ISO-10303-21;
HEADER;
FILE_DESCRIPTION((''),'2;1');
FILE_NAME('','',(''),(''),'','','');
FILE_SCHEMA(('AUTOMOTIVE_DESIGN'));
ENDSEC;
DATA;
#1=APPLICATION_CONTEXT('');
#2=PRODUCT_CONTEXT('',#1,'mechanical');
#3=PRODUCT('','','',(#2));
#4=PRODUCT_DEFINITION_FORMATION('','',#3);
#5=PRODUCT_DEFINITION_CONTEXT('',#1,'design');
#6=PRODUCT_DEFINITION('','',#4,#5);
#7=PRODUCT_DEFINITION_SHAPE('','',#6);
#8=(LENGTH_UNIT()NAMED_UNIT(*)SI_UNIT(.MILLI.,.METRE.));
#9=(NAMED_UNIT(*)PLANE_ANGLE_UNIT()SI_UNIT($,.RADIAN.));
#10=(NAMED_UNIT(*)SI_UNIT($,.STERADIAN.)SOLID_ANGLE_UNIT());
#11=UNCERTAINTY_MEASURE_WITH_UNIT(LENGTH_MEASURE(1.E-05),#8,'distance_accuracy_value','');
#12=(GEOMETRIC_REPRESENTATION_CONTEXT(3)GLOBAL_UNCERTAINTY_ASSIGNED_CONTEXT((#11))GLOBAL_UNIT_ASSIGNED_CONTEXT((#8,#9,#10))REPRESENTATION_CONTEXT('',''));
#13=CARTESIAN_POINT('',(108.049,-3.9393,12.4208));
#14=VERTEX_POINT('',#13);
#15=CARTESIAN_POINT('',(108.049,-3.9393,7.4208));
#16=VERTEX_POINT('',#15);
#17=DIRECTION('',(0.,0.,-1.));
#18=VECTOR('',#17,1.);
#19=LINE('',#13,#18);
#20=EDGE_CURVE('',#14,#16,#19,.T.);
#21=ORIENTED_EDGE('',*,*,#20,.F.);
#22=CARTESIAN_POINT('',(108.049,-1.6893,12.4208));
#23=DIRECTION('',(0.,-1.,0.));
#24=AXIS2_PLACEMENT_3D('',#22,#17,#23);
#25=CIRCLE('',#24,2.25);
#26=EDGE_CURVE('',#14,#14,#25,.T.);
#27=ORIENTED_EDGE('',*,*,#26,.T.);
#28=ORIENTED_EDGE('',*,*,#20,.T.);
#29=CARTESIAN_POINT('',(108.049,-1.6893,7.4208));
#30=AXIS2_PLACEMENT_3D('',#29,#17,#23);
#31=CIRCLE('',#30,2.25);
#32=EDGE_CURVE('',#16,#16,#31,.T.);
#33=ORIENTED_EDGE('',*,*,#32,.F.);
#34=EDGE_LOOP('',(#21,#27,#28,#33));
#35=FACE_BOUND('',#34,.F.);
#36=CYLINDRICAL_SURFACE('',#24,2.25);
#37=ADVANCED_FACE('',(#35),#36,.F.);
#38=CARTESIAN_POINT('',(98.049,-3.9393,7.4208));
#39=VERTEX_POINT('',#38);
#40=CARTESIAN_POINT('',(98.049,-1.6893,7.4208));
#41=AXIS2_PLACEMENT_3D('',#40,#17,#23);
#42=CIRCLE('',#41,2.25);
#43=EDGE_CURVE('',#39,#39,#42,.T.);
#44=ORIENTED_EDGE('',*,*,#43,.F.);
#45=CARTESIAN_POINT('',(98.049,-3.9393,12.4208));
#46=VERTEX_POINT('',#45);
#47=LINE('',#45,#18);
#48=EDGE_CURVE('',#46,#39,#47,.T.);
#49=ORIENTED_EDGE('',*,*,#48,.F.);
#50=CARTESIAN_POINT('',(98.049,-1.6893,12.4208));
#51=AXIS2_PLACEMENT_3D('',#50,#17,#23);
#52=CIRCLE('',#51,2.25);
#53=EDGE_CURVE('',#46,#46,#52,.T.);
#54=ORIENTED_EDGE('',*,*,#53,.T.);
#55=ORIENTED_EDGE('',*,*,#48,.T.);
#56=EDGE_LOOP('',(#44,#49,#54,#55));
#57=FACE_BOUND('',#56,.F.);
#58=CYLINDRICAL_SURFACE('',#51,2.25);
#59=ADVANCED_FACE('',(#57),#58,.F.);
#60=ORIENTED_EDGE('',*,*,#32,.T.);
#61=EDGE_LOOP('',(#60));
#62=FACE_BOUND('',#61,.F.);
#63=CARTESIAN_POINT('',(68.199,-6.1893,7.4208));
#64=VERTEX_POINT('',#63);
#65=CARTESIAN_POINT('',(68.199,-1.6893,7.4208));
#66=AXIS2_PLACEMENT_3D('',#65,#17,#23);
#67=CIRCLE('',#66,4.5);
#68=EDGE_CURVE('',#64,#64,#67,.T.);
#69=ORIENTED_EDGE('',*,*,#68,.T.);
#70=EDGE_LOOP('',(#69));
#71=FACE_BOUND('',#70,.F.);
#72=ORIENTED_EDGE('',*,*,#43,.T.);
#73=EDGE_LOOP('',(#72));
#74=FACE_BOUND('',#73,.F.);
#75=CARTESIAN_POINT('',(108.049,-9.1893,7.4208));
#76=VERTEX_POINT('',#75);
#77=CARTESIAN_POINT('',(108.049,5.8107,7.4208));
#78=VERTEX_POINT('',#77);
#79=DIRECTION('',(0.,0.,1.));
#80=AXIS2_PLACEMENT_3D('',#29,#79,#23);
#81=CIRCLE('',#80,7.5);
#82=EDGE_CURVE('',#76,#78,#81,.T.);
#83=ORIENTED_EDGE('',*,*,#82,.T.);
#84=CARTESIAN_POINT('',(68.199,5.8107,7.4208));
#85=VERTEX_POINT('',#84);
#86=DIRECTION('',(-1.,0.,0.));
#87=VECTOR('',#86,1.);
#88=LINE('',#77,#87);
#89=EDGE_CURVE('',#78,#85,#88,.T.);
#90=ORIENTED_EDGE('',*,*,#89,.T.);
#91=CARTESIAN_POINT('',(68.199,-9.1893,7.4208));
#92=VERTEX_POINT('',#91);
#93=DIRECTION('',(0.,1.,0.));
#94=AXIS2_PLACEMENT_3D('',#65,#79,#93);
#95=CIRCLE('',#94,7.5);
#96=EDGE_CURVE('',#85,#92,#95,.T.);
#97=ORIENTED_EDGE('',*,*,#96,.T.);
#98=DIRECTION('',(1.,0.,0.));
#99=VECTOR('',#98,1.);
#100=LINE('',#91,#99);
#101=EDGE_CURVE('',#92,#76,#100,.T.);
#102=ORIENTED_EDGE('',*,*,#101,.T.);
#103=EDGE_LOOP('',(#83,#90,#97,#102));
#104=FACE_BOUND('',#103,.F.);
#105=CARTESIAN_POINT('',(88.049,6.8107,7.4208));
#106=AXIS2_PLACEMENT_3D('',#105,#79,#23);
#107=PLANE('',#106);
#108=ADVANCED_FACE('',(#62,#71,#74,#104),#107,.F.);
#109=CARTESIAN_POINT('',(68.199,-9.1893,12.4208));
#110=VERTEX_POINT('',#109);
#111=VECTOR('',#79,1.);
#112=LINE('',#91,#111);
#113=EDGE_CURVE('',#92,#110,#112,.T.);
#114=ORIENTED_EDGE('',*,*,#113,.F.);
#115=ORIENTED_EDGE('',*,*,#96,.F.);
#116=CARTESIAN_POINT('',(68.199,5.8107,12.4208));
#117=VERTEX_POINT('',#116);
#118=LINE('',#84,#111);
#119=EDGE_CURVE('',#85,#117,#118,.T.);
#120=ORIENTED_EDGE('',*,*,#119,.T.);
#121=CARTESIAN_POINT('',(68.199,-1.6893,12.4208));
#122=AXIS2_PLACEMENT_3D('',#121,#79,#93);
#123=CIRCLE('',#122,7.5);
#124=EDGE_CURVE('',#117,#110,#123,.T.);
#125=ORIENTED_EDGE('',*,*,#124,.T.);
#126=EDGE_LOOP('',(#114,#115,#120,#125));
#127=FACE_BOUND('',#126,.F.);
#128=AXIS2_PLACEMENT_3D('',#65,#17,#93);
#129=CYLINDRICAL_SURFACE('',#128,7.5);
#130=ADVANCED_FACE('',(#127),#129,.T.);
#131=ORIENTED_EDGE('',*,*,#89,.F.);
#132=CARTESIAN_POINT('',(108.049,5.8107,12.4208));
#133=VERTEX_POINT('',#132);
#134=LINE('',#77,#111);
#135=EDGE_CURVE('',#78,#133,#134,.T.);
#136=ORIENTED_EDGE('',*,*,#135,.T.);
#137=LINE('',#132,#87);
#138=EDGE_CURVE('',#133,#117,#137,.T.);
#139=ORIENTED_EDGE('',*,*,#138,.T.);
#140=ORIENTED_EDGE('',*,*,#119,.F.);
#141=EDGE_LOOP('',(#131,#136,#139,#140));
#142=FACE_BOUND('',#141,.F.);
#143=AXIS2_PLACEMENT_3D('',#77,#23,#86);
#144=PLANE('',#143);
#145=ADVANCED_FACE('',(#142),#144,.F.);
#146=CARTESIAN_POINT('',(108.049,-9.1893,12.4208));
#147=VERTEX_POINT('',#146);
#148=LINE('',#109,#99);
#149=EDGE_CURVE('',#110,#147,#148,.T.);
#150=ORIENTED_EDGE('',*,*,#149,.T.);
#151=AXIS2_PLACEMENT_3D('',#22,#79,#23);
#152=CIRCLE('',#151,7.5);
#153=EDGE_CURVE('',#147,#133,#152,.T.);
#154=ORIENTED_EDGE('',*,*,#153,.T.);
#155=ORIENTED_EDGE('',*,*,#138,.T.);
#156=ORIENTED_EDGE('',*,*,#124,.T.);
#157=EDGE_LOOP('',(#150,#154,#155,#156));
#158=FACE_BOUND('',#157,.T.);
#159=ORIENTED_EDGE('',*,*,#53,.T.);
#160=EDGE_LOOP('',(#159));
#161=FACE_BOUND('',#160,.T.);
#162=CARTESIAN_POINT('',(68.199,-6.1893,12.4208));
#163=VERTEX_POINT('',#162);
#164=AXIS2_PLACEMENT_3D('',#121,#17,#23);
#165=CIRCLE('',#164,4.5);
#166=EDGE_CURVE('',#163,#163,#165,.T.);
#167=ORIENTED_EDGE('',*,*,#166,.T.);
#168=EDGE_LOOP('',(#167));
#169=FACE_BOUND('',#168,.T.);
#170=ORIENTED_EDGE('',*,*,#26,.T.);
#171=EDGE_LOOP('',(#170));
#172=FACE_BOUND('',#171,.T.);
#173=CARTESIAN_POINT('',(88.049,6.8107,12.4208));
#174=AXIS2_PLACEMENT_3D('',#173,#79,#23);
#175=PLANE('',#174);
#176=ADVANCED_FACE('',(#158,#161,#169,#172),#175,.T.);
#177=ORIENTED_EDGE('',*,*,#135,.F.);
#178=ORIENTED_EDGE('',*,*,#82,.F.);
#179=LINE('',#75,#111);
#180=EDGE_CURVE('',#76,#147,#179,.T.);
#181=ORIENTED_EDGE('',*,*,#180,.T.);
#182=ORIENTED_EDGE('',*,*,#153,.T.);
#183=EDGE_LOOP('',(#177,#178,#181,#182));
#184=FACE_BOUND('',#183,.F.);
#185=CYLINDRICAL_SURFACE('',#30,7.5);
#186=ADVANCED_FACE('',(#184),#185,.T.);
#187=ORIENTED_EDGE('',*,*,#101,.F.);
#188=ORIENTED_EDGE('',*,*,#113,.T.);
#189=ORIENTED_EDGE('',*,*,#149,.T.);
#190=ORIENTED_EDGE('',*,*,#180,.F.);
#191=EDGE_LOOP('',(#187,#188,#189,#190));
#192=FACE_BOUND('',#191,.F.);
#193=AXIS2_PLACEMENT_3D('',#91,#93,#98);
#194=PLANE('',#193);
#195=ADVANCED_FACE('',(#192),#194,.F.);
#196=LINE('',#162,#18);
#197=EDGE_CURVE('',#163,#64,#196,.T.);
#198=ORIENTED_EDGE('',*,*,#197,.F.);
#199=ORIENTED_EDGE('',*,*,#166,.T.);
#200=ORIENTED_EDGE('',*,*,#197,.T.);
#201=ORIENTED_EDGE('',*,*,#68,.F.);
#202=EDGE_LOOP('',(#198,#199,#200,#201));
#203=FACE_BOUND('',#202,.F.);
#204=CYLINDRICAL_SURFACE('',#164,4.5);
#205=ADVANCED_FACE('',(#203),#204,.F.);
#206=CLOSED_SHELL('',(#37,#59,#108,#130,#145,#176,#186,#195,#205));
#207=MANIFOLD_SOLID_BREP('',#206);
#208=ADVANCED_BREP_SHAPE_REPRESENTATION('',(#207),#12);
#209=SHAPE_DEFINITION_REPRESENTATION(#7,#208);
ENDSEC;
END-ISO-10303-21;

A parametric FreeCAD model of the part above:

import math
import FreeCAD as App
import Part
import Sketcher
from FreeCAD import Vector
Q = App.Units.Quantity

doc = App.newDocument("Part")
body = doc.addObject("PartDesign::Body", "Body")

# Sketch on XY plane
sketch1 = body.newObject("Sketcher::SketchObject", "Sketch")
sketch1.AttachmentSupport = (doc.getObject("XY_Plane"), [""])
sketch1.MapMode = "FlatFace"
sketch1.AttachmentOffset = App.Placement(Vector(0, 0, 7.4208), App.Rotation())
sketch1.addGeometry(Part.ArcOfCircle(Part.Circle(Vector(68.199, -1.6893, 0), Vector(0, 0, 1), 7.5), math.radians(90), math.radians(270)), False)
sketch1.addGeometry(Part.LineSegment(Vector(68.199, -9.1893, 0), Vector(108.049, -9.1893, 0)), False)
sketch1.addGeometry(Part.ArcOfCircle(Part.Circle(Vector(108.049, -1.6893, 0), Vector(0, 0, 1), 7.5), math.radians(-90), math.radians(90)), False)
sketch1.addGeometry(Part.LineSegment(Vector(108.049, 5.8107, 0), Vector(68.199, 5.8107, 0)), False)
sketch1.addConstraint(Sketcher.Constraint("Tangent", 0, 2, 1, 1))
sketch1.addConstraint(Sketcher.Constraint("Tangent", 1, 2, 2, 1))
sketch1.addConstraint(Sketcher.Constraint("Tangent", 2, 2, 3, 1))
sketch1.addConstraint(Sketcher.Constraint("Tangent", 3, 2, 0, 1))
sketch1.addConstraint(Sketcher.Constraint("Horizontal", 1))
sketch1.addConstraint(Sketcher.Constraint("Horizontal", 3))
sketch1.addConstraint(Sketcher.Constraint("Radius", 0, Q("7.5 mm")))
sketch1.addConstraint(Sketcher.Constraint("DistanceX", 1, 1, 1, 2, Q("39.85 mm")))
sketch1.addConstraint(Sketcher.Constraint("DistanceX", -1, 1, 0, 3, Q("68.199 mm")))
sketch1.addConstraint(Sketcher.Constraint("DistanceY", 0, 3, -1, 1, Q("1.6893 mm")))
pad1 = body.newObject("PartDesign::Pad", "Pad")
pad1.Profile = sketch1
pad1.Length = 5

# Sketch on XY plane
sketch2 = body.newObject("Sketcher::SketchObject", "Sketch001")
sketch2.AttachmentSupport = (doc.getObject("XY_Plane"), [""])
sketch2.MapMode = "FlatFace"
sketch2.AttachmentOffset = App.Placement(Vector(0, 0, 12.4208), App.Rotation())
sketch2.addGeometry(Part.Circle(Vector(98.049, -1.6893, 0), Vector(0, 0, 1), 2.25), False)
sketch2.addGeometry(Part.Circle(Vector(108.049, -1.6893, 0), Vector(0, 0, 1), 2.25), False)
sketch2.addConstraint(Sketcher.Constraint("Equal", 0, 1))
sketch2.addConstraint(Sketcher.Constraint("Horizontal", 0, 3, 1, 3))
sketch2.addConstraint(Sketcher.Constraint("Diameter", 0, Q("4.5 mm")))
sketch2.addConstraint(Sketcher.Constraint("DistanceX", 0, 3, 1, 3, Q("10 mm")))
sketch2.addConstraint(Sketcher.Constraint("DistanceX", -1, 1, 0, 3, Q("98.049 mm")))
sketch2.addConstraint(Sketcher.Constraint("DistanceY", 0, 3, -1, 1, Q("1.6893 mm")))
doc.recompute()
hole = body.newObject("PartDesign::Hole", "Hole")
hole.Profile = sketch2
hole.ThreadType = "None"
hole.Diameter = 4.5
hole.DepthType = "Dimension"
hole.Depth = 6
hole.DrillPoint = "Flat"

# Sketch on XY plane
sketch3 = body.newObject("Sketcher::SketchObject", "Sketch002")
sketch3.AttachmentSupport = (doc.getObject("XY_Plane"), [""])
sketch3.MapMode = "FlatFace"
sketch3.AttachmentOffset = App.Placement(Vector(0, 0, 12.4208), App.Rotation())
sketch3.addGeometry(Part.Circle(Vector(68.199, -1.6893, 0), Vector(0, 0, 1), 4.5), False)
sketch3.addConstraint(Sketcher.Constraint("Diameter", 0, Q("9 mm")))
sketch3.addConstraint(Sketcher.Constraint("DistanceX", -1, 1, 0, 3, Q("68.199 mm")))
sketch3.addConstraint(Sketcher.Constraint("DistanceY", 0, 3, -1, 1, Q("1.6893 mm")))
doc.recompute()
hole2 = body.newObject("PartDesign::Hole", "Hole001")
hole2.Profile = sketch3
hole2.ThreadType = "None"
hole2.Diameter = 9
hole2.DepthType = "Dimension"
hole2.Depth = 6
hole2.DrillPoint = "Flat"

doc.recompute()
